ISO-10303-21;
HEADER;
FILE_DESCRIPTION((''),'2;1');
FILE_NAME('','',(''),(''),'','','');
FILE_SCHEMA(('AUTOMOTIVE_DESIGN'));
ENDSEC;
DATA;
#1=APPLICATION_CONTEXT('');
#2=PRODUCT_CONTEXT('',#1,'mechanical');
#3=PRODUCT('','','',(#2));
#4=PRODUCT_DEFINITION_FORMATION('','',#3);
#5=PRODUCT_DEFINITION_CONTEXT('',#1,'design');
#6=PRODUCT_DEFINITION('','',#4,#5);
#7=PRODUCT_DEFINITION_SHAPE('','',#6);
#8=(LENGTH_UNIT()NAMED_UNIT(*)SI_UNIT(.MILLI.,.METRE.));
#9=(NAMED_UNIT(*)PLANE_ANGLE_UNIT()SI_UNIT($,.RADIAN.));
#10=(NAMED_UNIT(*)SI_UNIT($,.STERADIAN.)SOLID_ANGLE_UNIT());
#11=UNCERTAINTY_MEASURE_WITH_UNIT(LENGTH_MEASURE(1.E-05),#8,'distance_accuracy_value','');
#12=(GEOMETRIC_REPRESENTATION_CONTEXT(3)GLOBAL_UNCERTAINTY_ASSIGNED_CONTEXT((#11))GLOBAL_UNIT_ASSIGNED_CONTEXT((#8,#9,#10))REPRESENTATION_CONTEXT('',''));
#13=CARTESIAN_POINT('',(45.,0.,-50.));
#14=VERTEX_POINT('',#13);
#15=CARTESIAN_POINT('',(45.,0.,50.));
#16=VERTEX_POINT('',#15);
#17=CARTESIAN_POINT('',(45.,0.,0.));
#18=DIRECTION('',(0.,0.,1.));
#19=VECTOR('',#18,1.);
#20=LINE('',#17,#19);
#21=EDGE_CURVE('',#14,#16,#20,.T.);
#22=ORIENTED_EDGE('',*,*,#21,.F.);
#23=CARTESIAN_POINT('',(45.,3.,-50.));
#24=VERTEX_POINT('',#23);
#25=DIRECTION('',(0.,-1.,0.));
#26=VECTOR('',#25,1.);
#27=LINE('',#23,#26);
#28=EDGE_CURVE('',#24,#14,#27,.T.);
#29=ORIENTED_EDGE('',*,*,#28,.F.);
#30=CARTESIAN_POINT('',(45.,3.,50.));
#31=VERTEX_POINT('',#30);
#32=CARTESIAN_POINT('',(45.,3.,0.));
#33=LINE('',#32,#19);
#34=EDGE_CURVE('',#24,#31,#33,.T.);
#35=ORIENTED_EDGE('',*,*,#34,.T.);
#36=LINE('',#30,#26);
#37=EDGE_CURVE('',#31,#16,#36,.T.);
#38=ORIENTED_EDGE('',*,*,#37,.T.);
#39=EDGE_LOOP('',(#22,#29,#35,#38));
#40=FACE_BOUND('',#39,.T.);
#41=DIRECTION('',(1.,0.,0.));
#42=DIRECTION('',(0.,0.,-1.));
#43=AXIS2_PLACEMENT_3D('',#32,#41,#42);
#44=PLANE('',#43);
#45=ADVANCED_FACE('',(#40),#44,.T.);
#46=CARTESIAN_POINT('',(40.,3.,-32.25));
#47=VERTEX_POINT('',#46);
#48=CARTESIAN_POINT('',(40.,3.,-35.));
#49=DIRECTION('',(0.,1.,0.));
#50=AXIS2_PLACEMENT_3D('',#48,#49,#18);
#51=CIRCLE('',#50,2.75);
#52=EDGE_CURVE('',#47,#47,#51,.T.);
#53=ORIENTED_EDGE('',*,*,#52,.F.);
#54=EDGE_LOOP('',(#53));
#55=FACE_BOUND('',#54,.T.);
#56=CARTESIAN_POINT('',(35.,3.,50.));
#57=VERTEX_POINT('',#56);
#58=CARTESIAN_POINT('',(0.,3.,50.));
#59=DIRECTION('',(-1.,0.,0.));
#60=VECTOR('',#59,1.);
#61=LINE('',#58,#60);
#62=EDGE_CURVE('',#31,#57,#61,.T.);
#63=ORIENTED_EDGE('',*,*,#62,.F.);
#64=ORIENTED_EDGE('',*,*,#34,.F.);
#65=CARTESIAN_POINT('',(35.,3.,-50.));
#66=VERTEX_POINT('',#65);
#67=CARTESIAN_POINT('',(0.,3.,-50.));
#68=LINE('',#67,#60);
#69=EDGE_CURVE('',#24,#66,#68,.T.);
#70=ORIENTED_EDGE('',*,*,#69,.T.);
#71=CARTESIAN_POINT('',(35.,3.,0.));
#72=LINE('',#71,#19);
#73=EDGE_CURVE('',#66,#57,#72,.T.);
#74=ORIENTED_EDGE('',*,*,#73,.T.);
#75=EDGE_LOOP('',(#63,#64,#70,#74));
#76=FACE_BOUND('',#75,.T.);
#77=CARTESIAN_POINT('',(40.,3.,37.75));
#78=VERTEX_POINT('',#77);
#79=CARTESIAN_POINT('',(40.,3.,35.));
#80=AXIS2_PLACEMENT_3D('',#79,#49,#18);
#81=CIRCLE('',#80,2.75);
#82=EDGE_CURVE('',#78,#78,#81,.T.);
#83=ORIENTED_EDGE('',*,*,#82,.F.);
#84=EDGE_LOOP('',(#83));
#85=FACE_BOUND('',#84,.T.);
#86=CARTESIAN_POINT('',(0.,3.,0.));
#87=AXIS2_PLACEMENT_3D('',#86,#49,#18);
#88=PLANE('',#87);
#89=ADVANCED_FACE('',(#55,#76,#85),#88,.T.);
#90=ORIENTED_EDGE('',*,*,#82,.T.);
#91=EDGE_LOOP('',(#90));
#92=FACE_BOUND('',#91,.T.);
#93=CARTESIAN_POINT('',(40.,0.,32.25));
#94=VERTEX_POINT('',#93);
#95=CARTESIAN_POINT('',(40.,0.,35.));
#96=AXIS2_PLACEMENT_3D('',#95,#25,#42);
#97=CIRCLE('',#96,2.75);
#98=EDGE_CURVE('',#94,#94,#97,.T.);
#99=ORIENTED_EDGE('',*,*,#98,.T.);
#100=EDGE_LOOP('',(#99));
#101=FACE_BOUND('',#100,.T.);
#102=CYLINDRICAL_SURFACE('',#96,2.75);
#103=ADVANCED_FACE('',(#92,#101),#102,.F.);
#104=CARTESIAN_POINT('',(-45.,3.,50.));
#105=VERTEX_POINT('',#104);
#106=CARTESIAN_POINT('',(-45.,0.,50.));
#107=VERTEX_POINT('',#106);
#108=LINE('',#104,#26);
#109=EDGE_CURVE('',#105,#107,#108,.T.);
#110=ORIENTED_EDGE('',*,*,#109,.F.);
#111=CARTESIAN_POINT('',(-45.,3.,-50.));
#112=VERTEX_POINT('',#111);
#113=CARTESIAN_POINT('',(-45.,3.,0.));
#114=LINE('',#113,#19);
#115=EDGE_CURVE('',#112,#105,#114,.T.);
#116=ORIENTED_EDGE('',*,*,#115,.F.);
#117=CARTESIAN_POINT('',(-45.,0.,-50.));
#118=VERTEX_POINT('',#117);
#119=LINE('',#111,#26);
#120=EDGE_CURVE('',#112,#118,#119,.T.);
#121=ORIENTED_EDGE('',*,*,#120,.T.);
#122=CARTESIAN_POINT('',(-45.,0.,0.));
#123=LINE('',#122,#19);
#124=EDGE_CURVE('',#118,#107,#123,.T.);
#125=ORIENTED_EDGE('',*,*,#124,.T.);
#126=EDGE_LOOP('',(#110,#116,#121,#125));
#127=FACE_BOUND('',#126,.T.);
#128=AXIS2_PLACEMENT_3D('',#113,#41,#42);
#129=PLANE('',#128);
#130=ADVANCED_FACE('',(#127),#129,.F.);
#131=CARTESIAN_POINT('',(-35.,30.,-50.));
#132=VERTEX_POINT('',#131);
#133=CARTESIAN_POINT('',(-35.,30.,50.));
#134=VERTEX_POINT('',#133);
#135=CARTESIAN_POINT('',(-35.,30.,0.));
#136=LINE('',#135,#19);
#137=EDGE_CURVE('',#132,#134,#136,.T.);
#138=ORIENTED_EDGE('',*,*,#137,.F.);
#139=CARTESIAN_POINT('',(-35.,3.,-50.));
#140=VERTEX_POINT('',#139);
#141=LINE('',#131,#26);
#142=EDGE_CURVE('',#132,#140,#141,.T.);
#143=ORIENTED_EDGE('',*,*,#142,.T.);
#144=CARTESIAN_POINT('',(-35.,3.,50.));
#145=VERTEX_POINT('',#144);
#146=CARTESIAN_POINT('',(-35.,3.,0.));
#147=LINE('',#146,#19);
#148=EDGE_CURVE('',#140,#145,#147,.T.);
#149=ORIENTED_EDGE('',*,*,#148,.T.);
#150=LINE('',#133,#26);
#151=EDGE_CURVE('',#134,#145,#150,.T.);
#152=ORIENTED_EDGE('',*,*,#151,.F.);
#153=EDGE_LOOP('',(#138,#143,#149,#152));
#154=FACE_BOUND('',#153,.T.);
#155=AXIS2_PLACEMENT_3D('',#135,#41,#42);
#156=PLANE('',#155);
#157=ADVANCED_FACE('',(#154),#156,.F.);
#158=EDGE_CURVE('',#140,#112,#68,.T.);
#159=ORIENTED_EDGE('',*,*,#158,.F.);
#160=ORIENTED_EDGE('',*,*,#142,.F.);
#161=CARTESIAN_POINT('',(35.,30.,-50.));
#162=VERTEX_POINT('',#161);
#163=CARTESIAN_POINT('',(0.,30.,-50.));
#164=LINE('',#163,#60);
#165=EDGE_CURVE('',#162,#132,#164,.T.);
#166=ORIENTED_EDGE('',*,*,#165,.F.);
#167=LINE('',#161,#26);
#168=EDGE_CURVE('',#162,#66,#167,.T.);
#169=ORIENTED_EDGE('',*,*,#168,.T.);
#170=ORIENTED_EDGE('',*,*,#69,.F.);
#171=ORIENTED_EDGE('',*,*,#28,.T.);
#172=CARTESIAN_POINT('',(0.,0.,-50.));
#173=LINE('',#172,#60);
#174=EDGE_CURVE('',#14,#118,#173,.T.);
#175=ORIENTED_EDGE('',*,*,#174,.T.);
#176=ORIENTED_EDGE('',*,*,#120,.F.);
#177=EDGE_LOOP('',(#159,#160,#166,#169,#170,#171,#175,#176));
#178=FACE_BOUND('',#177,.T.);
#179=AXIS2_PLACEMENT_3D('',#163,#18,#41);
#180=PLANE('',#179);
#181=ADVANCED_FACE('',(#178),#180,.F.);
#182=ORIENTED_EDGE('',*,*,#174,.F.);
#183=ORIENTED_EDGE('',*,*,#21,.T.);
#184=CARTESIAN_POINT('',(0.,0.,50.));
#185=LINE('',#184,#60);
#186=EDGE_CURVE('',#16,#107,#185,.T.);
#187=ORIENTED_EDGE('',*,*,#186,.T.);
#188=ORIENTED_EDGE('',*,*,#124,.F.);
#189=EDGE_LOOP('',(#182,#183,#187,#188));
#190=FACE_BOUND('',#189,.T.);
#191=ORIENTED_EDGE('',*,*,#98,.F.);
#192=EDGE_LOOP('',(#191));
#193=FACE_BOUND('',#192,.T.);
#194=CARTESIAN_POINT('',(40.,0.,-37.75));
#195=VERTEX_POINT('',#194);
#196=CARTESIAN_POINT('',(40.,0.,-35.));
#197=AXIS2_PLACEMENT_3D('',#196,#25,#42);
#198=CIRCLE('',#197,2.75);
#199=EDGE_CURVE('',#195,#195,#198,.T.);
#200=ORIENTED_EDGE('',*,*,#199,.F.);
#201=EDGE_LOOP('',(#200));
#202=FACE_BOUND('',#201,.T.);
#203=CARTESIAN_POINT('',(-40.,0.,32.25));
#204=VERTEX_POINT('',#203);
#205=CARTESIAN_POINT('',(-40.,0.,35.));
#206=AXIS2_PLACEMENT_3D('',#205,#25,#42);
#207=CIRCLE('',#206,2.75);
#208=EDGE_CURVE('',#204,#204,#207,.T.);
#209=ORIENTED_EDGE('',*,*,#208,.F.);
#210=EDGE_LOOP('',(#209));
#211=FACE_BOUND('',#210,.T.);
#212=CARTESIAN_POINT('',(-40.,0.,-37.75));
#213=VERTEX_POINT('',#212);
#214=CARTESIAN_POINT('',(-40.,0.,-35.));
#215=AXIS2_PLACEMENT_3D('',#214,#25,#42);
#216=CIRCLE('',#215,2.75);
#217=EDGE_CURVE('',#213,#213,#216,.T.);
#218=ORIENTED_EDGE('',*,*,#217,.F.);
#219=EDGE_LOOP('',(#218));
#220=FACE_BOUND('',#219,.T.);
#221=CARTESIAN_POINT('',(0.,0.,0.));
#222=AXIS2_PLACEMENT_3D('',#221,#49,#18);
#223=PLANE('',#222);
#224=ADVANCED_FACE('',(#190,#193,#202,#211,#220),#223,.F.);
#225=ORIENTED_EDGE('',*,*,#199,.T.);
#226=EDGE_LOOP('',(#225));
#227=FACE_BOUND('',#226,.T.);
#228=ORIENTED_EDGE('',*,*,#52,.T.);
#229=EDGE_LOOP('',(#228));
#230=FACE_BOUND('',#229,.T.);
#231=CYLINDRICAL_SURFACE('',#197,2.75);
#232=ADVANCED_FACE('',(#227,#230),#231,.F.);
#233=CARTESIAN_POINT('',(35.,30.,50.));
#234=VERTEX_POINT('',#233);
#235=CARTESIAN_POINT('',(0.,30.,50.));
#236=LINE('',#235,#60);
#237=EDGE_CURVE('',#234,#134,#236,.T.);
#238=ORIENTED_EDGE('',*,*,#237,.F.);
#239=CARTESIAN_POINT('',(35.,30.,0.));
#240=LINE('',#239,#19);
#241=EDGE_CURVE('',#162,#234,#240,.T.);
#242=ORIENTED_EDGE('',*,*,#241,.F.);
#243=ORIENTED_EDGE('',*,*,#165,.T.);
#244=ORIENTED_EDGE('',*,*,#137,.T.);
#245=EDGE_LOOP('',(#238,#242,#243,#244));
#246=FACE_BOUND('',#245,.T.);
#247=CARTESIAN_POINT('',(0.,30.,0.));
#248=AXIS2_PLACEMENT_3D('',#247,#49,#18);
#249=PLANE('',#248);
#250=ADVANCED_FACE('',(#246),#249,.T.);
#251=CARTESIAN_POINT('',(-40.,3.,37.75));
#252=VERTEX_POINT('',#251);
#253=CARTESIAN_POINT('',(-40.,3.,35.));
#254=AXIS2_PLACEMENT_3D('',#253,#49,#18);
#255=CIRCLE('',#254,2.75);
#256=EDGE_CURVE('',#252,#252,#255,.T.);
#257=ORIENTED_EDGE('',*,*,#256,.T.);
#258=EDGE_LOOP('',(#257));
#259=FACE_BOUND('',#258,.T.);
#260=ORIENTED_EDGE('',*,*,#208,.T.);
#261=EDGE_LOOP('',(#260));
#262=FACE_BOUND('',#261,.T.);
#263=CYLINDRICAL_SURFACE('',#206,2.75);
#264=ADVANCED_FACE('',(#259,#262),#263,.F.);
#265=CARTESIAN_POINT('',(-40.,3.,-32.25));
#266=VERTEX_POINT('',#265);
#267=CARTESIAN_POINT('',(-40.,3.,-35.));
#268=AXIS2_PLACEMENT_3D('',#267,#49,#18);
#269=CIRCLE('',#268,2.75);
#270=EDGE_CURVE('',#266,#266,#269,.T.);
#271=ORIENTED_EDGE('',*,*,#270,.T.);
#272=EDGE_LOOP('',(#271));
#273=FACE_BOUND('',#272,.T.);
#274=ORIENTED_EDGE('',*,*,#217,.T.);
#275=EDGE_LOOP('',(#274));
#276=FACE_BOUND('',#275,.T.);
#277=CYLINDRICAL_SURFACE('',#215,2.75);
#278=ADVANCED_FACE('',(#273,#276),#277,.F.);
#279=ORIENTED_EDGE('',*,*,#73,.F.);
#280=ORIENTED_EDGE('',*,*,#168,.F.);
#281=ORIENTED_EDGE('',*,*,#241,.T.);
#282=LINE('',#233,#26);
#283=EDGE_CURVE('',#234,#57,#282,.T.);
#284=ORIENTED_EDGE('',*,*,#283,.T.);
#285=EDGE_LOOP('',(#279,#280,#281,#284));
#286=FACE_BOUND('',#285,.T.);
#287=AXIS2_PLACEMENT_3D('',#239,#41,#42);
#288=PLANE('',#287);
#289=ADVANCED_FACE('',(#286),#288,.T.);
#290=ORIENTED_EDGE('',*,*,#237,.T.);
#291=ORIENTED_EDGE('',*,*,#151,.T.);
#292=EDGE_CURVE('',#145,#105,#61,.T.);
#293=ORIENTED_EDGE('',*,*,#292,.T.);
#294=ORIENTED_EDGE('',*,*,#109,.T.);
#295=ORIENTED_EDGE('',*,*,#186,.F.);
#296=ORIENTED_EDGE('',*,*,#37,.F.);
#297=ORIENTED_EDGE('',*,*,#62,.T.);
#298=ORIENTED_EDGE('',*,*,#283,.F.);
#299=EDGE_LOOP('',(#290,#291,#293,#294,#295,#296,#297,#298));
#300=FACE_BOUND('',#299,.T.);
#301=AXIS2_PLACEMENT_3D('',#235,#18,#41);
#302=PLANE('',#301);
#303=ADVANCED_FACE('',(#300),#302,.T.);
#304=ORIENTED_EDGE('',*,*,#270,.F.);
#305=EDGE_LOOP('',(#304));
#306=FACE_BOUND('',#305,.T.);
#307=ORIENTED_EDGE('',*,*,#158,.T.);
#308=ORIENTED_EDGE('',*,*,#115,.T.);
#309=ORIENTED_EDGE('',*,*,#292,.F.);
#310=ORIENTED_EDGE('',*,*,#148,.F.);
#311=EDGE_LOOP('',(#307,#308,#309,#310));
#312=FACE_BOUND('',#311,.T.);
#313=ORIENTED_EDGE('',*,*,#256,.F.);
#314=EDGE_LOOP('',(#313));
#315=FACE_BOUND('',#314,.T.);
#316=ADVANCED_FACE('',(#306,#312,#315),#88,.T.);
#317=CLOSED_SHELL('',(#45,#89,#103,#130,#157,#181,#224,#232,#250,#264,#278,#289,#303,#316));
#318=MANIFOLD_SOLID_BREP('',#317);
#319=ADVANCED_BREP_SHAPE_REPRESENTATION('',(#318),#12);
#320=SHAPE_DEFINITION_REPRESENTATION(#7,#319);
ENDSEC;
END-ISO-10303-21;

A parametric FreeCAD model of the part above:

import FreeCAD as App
import Part
import Sketcher
Q = App.Units.Quantity

doc = App.newDocument("Part")
body = doc.addObject("PartDesign::Body", "Body")

sketch1 = body.newObject("Sketcher::SketchObject", "Sketch")
sketch1.AttachmentSupport = (doc.getObject("XZ_Plane"), [""])
sketch1.MapMode = "FlatFace"
sketch1.addGeometry(Part.LineSegment(App.Vector(-35, -50, 0), App.Vector(-35, 50, 0)), False)
sketch1.addGeometry(Part.LineSegment(App.Vector(-35, 50, 0), App.Vector(35, 50, 0)), False)
sketch1.addGeometry(Part.LineSegment(App.Vector(35, 50, 0), App.Vector(35, -50, 0)), False)
sketch1.addGeometry(Part.LineSegment(App.Vector(35, -50, 0), App.Vector(-35, -50, 0)), False)
sketch1.addConstraint(Sketcher.Constraint("Coincident", 0, 2, 1, 1))
sketch1.addConstraint(Sketcher.Constraint("Coincident", 1, 2, 2, 1))
sketch1.addConstraint(Sketcher.Constraint("Coincident", 2, 2, 3, 1))
sketch1.addConstraint(Sketcher.Constraint("Coincident", 3, 2, 0, 1))
sketch1.addConstraint(Sketcher.Constraint("Vertical", 0))
sketch1.addConstraint(Sketcher.Constraint("Horizontal", 1))
sketch1.addConstraint(Sketcher.Constraint("Vertical", 2))
sketch1.addConstraint(Sketcher.Constraint("Horizontal", 3))
sketch1.addConstraint(Sketcher.Constraint("Symmetric", 0, 2, 2, 2, -1, 1))
sketch1.addConstraint(Sketcher.Constraint("DistanceX", 1, 1, 1, 2, Q("70 mm")))
sketch1.addConstraint(Sketcher.Constraint("DistanceY", 0, 1, 0, 2, Q("100 mm")))
pad1 = body.newObject("PartDesign::Pad", "Pad")
pad1.Profile = sketch1
pad1.Length = 30
pad1.Reversed = True

sketch2 = body.newObject("Sketcher::SketchObject", "Sketch001")
sketch2.AttachmentSupport = (doc.getObject("XZ_Plane"), [""])
sketch2.MapMode = "FlatFace"
sketch2.addGeometry(Part.LineSegment(App.Vector(-35, 50, 0), App.Vector(-35, -50, 0)), False)
sketch2.addGeometry(Part.LineSegment(App.Vector(-35, -50, 0), App.Vector(-45, -50, 0)), False)
sketch2.addGeometry(Part.LineSegment(App.Vector(-45, -50, 0), App.Vector(-45, 50, 0)), False)
sketch2.addGeometry(Part.LineSegment(App.Vector(-45, 50, 0), App.Vector(-35, 50, 0)), False)
sketch2.addGeometry(Part.LineSegment(App.Vector(45, -50, 0), App.Vector(35, -50, 0)), False)
sketch2.addGeometry(Part.LineSegment(App.Vector(35, -50, 0), App.Vector(35, 50, 0)), False)
sketch2.addGeometry(Part.LineSegment(App.Vector(35, 50, 0), App.Vector(45, 50, 0)), False)
sketch2.addGeometry(Part.LineSegment(App.Vector(45, 50, 0), App.Vector(45, -50, 0)), False)
sketch2.addConstraint(Sketcher.Constraint("Coincident", 0, 2, 1, 1))
sketch2.addConstraint(Sketcher.Constraint("Coincident", 1, 2, 2, 1))
sketch2.addConstraint(Sketcher.Constraint("Coincident", 2, 2, 3, 1))
sketch2.addConstraint(Sketcher.Constraint("Coincident", 3, 2, 0, 1))
sketch2.addConstraint(Sketcher.Constraint("Coincident", 4, 2, 5, 1))
sketch2.addConstraint(Sketcher.Constraint("Coincident", 5, 2, 6, 1))
sketch2.addConstraint(Sketcher.Constraint("Coincident", 6, 2, 7, 1))
sketch2.addConstraint(Sketcher.Constraint("Coincident", 7, 2, 4, 1))
sketch2.addConstraint(Sketcher.Constraint("Vertical", 0))
sketch2.addConstraint(Sketcher.Constraint("Horizontal", 1))
sketch2.addConstraint(Sketcher.Constraint("Vertical", 2))
sketch2.addConstraint(Sketcher.Constraint("Horizontal", 3))
sketch2.addConstraint(Sketcher.Constraint("Horizontal", 4))
sketch2.addConstraint(Sketcher.Constraint("Vertical", 5))
sketch2.addConstraint(Sketcher.Constraint("Horizontal", 6))
sketch2.addConstraint(Sketcher.Constraint("Vertical", 7))
sketch2.addConstraint(Sketcher.Constraint("Symmetric", 3, 2, 4, 2, -1, 1))
sketch2.addConstraint(Sketcher.Constraint("Symmetric", 1, 2, 6, 2, -1, 1))
sketch2.addConstraint(Sketcher.Constraint("Horizontal", 1, 2, 4, 2))
sketch2.addConstraint(Sketcher.Constraint("DistanceX", 1, 2, 1, 1, Q("10 mm")))
sketch2.addConstraint(Sketcher.Constraint("DistanceY", 0, 2, 0, 1, Q("100 mm")))
sketch2.addConstraint(Sketcher.Constraint("DistanceX", 0, 2, -1, 1, Q("35 mm")))
pad2 = body.newObject("PartDesign::Pad", "Pad001")
pad2.Profile = sketch2
pad2.Length = 3
pad2.Reversed = True

sketch3 = body.newObject("Sketcher::SketchObject", "Sketch002")
sketch3.AttachmentSupport = (doc.getObject("XZ_Plane"), [""])
sketch3.MapMode = "FlatFace"
sketch3.addGeometry(Part.Circle(App.Vector(-40, -35, 0), App.Vector(0, 0, 1), 2.75), False)
sketch3.addGeometry(Part.Circle(App.Vector(-40, 35, 0), App.Vector(0, 0, 1), 2.75), False)
sketch3.addGeometry(Part.Circle(App.Vector(40, -35, 0), App.Vector(0, 0, 1), 2.75), False)
sketch3.addGeometry(Part.Circle(App.Vector(40, 35, 0), App.Vector(0, 0, 1), 2.75), False)
sketch3.addConstraint(Sketcher.Constraint("Equal", 0, 1))
sketch3.addConstraint(Sketcher.Constraint("Equal", 1, 2))
sketch3.addConstraint(Sketcher.Constraint("Equal", 2, 3))
sketch3.addConstraint(Sketcher.Constraint("Symmetric", 1, 3, 2, 3, -1, 1))
sketch3.addConstraint(Sketcher.Constraint("Symmetric", 0, 3, 3, 3, -1, 1))
sketch3.addConstraint(Sketcher.Constraint("Symmetric", 0, 3, 2, 3, -2))
sketch3.addConstraint(Sketcher.Constraint("Diameter", 0, Q("5.5 mm")))
sketch3.addConstraint(Sketcher.Constraint("DistanceX", 0, 3, -1, 1, Q("40 mm")))
sketch3.addConstraint(Sketcher.Constraint("DistanceY", 0, 3, -1, 1, Q("35 mm")))
doc.recompute()
hole = body.newObject("PartDesign::Hole", "Hole")
hole.Profile = sketch3
hole.ThreadType = "None"
hole.Diameter = 5.5
hole.DepthType = "Dimension"
hole.Depth = 22.25
hole.DrillPoint = "Angled"
hole.DrillPointAngle = 118

doc.recompute()
